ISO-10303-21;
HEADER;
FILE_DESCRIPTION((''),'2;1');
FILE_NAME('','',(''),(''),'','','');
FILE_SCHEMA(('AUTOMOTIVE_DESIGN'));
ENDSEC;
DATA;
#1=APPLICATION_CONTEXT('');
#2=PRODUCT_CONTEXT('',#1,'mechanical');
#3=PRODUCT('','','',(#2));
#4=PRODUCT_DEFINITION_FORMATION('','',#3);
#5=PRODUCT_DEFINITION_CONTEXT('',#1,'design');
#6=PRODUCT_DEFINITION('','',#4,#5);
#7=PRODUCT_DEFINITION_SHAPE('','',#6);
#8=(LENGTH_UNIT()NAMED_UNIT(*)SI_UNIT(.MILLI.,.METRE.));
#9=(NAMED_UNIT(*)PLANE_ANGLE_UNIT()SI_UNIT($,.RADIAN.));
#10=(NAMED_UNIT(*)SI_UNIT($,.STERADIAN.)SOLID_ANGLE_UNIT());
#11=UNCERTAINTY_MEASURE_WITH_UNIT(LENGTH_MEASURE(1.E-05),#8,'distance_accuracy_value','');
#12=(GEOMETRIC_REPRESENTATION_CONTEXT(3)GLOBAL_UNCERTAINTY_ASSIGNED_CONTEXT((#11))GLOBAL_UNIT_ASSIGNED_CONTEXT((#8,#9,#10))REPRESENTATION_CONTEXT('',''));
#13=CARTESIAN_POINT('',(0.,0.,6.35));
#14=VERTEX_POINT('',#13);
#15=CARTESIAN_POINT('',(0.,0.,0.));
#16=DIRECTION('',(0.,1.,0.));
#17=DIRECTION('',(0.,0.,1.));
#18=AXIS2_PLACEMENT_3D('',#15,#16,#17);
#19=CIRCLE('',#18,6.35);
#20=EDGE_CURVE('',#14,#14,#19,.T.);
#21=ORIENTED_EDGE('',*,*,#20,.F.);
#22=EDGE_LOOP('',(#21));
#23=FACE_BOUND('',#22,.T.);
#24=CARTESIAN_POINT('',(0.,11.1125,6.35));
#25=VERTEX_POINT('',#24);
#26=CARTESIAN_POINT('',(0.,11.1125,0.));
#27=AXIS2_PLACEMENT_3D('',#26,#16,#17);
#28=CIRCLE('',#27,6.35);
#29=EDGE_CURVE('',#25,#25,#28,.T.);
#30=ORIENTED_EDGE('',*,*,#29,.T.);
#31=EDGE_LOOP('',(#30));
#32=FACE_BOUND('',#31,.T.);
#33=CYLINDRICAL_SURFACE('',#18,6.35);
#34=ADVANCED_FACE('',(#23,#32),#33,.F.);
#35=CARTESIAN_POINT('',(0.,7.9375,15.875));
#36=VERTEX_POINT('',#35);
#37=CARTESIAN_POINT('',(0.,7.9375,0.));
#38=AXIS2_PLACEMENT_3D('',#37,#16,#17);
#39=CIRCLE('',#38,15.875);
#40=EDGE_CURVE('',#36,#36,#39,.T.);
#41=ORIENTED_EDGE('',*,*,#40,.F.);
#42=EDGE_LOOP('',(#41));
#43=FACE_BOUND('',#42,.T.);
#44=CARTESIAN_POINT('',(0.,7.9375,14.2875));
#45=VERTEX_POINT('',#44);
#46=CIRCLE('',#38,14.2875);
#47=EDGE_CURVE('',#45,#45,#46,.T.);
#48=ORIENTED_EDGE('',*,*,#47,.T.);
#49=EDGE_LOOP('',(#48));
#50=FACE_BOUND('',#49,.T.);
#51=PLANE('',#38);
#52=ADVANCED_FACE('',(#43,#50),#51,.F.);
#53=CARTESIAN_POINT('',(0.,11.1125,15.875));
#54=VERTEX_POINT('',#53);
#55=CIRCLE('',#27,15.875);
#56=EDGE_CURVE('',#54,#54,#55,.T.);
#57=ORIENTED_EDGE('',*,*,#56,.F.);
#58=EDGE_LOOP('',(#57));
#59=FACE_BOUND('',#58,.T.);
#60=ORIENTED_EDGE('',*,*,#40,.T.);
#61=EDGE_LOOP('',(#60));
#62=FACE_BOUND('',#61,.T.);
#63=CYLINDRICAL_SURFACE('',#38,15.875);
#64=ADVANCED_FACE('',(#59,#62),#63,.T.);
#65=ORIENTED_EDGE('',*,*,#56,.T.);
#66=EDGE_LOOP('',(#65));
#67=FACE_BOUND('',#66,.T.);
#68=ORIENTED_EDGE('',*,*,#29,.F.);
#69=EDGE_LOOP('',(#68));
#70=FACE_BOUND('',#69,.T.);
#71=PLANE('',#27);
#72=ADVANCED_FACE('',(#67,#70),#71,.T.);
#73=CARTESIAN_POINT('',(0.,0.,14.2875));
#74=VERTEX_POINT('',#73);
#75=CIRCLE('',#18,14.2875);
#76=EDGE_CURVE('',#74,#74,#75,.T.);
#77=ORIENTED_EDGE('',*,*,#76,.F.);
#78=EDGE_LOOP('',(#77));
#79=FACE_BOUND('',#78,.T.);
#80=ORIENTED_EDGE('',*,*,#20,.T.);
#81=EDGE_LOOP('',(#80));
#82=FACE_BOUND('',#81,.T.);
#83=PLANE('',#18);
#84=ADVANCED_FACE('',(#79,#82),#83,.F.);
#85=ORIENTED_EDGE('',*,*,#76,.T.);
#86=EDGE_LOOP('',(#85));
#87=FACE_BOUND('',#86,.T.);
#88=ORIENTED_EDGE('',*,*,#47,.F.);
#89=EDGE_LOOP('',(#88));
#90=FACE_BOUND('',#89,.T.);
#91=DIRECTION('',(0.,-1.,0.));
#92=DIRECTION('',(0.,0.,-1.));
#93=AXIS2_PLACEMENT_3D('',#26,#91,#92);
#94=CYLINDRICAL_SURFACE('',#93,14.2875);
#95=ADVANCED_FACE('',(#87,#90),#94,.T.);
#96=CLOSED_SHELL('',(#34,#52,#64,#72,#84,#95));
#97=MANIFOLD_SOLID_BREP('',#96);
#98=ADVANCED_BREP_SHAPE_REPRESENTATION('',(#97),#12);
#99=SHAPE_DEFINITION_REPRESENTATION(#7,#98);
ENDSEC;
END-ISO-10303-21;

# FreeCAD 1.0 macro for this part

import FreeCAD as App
import Part
import Sketcher
Q = App.Units.Quantity

doc = App.newDocument("Part")
body = doc.addObject("PartDesign::Body", "Body")

# Sketch on XZ plane
sketch1 = body.newObject("Sketcher::SketchObject", "Sketch")
sketch1.AttachmentSupport = (doc.getObject("XZ_Plane"), [""])
sketch1.MapMode = "FlatFace"
sketch1.addGeometry(Part.Circle(App.Vector(0, 0, 0), App.Vector(0, 0, 1), 14.2875), False)
sketch1.addConstraint(Sketcher.Constraint("Coincident", 0, 3, -1, 1))
sketch1.addConstraint(Sketcher.Constraint("Diameter", 0, Q("1.125 in")))
pad1 = body.newObject("PartDesign::Pad", "Pad")
pad1.Profile = sketch1
pad1.Length = Q("0.4375 in")
pad1.Reversed = True

# Sketch on XZ plane
sketch2 = body.newObject("Sketcher::SketchObject", "Sketch001")
sketch2.AttachmentSupport = (doc.getObject("XZ_Plane"), [""])
sketch2.MapMode = "FlatFace"
sketch2.AttachmentOffset = App.Placement(App.Vector(0, 0, -0.4375 * 25.4), App.Rotation())
sketch2.addGeometry(Part.Circle(App.Vector(0, 0, 0), App.Vector(0, 0, 1), 15.875), False)
sketch2.addConstraint(Sketcher.Constraint("Coincident", 0, 3, -1, 1))
sketch2.addConstraint(Sketcher.Constraint("Diameter", 0, Q("1.25 in")))
pad2 = body.newObject("PartDesign::Pad", "Pad001")
pad2.Profile = sketch2
pad2.Length = Q("0.125 in")

# Sketch on XZ plane
sketch3 = body.newObject("Sketcher::SketchObject", "Sketch002")
sketch3.AttachmentSupport = (doc.getObject("XZ_Plane"), [""])
sketch3.MapMode = "FlatFace"
sketch3.AttachmentOffset = App.Placement(App.Vector(0, 0, -0.4375 * 25.4), App.Rotation())
sketch3.addGeometry(Part.Circle(App.Vector(0, 0, 0), App.Vector(0, 0, 1), 6.35), False)
sketch3.addConstraint(Sketcher.Constraint("Coincident", 0, 3, -1, 1))
sketch3.addConstraint(Sketcher.Constraint("Diameter", 0, Q("0.5 in")))
pocket1 = body.newObject("PartDesign::Pocket", "Pocket")
pocket1.Profile = sketch3
pocket1.Type = "ThroughAll"
pocket1.Reversed = True

doc.recompute()
